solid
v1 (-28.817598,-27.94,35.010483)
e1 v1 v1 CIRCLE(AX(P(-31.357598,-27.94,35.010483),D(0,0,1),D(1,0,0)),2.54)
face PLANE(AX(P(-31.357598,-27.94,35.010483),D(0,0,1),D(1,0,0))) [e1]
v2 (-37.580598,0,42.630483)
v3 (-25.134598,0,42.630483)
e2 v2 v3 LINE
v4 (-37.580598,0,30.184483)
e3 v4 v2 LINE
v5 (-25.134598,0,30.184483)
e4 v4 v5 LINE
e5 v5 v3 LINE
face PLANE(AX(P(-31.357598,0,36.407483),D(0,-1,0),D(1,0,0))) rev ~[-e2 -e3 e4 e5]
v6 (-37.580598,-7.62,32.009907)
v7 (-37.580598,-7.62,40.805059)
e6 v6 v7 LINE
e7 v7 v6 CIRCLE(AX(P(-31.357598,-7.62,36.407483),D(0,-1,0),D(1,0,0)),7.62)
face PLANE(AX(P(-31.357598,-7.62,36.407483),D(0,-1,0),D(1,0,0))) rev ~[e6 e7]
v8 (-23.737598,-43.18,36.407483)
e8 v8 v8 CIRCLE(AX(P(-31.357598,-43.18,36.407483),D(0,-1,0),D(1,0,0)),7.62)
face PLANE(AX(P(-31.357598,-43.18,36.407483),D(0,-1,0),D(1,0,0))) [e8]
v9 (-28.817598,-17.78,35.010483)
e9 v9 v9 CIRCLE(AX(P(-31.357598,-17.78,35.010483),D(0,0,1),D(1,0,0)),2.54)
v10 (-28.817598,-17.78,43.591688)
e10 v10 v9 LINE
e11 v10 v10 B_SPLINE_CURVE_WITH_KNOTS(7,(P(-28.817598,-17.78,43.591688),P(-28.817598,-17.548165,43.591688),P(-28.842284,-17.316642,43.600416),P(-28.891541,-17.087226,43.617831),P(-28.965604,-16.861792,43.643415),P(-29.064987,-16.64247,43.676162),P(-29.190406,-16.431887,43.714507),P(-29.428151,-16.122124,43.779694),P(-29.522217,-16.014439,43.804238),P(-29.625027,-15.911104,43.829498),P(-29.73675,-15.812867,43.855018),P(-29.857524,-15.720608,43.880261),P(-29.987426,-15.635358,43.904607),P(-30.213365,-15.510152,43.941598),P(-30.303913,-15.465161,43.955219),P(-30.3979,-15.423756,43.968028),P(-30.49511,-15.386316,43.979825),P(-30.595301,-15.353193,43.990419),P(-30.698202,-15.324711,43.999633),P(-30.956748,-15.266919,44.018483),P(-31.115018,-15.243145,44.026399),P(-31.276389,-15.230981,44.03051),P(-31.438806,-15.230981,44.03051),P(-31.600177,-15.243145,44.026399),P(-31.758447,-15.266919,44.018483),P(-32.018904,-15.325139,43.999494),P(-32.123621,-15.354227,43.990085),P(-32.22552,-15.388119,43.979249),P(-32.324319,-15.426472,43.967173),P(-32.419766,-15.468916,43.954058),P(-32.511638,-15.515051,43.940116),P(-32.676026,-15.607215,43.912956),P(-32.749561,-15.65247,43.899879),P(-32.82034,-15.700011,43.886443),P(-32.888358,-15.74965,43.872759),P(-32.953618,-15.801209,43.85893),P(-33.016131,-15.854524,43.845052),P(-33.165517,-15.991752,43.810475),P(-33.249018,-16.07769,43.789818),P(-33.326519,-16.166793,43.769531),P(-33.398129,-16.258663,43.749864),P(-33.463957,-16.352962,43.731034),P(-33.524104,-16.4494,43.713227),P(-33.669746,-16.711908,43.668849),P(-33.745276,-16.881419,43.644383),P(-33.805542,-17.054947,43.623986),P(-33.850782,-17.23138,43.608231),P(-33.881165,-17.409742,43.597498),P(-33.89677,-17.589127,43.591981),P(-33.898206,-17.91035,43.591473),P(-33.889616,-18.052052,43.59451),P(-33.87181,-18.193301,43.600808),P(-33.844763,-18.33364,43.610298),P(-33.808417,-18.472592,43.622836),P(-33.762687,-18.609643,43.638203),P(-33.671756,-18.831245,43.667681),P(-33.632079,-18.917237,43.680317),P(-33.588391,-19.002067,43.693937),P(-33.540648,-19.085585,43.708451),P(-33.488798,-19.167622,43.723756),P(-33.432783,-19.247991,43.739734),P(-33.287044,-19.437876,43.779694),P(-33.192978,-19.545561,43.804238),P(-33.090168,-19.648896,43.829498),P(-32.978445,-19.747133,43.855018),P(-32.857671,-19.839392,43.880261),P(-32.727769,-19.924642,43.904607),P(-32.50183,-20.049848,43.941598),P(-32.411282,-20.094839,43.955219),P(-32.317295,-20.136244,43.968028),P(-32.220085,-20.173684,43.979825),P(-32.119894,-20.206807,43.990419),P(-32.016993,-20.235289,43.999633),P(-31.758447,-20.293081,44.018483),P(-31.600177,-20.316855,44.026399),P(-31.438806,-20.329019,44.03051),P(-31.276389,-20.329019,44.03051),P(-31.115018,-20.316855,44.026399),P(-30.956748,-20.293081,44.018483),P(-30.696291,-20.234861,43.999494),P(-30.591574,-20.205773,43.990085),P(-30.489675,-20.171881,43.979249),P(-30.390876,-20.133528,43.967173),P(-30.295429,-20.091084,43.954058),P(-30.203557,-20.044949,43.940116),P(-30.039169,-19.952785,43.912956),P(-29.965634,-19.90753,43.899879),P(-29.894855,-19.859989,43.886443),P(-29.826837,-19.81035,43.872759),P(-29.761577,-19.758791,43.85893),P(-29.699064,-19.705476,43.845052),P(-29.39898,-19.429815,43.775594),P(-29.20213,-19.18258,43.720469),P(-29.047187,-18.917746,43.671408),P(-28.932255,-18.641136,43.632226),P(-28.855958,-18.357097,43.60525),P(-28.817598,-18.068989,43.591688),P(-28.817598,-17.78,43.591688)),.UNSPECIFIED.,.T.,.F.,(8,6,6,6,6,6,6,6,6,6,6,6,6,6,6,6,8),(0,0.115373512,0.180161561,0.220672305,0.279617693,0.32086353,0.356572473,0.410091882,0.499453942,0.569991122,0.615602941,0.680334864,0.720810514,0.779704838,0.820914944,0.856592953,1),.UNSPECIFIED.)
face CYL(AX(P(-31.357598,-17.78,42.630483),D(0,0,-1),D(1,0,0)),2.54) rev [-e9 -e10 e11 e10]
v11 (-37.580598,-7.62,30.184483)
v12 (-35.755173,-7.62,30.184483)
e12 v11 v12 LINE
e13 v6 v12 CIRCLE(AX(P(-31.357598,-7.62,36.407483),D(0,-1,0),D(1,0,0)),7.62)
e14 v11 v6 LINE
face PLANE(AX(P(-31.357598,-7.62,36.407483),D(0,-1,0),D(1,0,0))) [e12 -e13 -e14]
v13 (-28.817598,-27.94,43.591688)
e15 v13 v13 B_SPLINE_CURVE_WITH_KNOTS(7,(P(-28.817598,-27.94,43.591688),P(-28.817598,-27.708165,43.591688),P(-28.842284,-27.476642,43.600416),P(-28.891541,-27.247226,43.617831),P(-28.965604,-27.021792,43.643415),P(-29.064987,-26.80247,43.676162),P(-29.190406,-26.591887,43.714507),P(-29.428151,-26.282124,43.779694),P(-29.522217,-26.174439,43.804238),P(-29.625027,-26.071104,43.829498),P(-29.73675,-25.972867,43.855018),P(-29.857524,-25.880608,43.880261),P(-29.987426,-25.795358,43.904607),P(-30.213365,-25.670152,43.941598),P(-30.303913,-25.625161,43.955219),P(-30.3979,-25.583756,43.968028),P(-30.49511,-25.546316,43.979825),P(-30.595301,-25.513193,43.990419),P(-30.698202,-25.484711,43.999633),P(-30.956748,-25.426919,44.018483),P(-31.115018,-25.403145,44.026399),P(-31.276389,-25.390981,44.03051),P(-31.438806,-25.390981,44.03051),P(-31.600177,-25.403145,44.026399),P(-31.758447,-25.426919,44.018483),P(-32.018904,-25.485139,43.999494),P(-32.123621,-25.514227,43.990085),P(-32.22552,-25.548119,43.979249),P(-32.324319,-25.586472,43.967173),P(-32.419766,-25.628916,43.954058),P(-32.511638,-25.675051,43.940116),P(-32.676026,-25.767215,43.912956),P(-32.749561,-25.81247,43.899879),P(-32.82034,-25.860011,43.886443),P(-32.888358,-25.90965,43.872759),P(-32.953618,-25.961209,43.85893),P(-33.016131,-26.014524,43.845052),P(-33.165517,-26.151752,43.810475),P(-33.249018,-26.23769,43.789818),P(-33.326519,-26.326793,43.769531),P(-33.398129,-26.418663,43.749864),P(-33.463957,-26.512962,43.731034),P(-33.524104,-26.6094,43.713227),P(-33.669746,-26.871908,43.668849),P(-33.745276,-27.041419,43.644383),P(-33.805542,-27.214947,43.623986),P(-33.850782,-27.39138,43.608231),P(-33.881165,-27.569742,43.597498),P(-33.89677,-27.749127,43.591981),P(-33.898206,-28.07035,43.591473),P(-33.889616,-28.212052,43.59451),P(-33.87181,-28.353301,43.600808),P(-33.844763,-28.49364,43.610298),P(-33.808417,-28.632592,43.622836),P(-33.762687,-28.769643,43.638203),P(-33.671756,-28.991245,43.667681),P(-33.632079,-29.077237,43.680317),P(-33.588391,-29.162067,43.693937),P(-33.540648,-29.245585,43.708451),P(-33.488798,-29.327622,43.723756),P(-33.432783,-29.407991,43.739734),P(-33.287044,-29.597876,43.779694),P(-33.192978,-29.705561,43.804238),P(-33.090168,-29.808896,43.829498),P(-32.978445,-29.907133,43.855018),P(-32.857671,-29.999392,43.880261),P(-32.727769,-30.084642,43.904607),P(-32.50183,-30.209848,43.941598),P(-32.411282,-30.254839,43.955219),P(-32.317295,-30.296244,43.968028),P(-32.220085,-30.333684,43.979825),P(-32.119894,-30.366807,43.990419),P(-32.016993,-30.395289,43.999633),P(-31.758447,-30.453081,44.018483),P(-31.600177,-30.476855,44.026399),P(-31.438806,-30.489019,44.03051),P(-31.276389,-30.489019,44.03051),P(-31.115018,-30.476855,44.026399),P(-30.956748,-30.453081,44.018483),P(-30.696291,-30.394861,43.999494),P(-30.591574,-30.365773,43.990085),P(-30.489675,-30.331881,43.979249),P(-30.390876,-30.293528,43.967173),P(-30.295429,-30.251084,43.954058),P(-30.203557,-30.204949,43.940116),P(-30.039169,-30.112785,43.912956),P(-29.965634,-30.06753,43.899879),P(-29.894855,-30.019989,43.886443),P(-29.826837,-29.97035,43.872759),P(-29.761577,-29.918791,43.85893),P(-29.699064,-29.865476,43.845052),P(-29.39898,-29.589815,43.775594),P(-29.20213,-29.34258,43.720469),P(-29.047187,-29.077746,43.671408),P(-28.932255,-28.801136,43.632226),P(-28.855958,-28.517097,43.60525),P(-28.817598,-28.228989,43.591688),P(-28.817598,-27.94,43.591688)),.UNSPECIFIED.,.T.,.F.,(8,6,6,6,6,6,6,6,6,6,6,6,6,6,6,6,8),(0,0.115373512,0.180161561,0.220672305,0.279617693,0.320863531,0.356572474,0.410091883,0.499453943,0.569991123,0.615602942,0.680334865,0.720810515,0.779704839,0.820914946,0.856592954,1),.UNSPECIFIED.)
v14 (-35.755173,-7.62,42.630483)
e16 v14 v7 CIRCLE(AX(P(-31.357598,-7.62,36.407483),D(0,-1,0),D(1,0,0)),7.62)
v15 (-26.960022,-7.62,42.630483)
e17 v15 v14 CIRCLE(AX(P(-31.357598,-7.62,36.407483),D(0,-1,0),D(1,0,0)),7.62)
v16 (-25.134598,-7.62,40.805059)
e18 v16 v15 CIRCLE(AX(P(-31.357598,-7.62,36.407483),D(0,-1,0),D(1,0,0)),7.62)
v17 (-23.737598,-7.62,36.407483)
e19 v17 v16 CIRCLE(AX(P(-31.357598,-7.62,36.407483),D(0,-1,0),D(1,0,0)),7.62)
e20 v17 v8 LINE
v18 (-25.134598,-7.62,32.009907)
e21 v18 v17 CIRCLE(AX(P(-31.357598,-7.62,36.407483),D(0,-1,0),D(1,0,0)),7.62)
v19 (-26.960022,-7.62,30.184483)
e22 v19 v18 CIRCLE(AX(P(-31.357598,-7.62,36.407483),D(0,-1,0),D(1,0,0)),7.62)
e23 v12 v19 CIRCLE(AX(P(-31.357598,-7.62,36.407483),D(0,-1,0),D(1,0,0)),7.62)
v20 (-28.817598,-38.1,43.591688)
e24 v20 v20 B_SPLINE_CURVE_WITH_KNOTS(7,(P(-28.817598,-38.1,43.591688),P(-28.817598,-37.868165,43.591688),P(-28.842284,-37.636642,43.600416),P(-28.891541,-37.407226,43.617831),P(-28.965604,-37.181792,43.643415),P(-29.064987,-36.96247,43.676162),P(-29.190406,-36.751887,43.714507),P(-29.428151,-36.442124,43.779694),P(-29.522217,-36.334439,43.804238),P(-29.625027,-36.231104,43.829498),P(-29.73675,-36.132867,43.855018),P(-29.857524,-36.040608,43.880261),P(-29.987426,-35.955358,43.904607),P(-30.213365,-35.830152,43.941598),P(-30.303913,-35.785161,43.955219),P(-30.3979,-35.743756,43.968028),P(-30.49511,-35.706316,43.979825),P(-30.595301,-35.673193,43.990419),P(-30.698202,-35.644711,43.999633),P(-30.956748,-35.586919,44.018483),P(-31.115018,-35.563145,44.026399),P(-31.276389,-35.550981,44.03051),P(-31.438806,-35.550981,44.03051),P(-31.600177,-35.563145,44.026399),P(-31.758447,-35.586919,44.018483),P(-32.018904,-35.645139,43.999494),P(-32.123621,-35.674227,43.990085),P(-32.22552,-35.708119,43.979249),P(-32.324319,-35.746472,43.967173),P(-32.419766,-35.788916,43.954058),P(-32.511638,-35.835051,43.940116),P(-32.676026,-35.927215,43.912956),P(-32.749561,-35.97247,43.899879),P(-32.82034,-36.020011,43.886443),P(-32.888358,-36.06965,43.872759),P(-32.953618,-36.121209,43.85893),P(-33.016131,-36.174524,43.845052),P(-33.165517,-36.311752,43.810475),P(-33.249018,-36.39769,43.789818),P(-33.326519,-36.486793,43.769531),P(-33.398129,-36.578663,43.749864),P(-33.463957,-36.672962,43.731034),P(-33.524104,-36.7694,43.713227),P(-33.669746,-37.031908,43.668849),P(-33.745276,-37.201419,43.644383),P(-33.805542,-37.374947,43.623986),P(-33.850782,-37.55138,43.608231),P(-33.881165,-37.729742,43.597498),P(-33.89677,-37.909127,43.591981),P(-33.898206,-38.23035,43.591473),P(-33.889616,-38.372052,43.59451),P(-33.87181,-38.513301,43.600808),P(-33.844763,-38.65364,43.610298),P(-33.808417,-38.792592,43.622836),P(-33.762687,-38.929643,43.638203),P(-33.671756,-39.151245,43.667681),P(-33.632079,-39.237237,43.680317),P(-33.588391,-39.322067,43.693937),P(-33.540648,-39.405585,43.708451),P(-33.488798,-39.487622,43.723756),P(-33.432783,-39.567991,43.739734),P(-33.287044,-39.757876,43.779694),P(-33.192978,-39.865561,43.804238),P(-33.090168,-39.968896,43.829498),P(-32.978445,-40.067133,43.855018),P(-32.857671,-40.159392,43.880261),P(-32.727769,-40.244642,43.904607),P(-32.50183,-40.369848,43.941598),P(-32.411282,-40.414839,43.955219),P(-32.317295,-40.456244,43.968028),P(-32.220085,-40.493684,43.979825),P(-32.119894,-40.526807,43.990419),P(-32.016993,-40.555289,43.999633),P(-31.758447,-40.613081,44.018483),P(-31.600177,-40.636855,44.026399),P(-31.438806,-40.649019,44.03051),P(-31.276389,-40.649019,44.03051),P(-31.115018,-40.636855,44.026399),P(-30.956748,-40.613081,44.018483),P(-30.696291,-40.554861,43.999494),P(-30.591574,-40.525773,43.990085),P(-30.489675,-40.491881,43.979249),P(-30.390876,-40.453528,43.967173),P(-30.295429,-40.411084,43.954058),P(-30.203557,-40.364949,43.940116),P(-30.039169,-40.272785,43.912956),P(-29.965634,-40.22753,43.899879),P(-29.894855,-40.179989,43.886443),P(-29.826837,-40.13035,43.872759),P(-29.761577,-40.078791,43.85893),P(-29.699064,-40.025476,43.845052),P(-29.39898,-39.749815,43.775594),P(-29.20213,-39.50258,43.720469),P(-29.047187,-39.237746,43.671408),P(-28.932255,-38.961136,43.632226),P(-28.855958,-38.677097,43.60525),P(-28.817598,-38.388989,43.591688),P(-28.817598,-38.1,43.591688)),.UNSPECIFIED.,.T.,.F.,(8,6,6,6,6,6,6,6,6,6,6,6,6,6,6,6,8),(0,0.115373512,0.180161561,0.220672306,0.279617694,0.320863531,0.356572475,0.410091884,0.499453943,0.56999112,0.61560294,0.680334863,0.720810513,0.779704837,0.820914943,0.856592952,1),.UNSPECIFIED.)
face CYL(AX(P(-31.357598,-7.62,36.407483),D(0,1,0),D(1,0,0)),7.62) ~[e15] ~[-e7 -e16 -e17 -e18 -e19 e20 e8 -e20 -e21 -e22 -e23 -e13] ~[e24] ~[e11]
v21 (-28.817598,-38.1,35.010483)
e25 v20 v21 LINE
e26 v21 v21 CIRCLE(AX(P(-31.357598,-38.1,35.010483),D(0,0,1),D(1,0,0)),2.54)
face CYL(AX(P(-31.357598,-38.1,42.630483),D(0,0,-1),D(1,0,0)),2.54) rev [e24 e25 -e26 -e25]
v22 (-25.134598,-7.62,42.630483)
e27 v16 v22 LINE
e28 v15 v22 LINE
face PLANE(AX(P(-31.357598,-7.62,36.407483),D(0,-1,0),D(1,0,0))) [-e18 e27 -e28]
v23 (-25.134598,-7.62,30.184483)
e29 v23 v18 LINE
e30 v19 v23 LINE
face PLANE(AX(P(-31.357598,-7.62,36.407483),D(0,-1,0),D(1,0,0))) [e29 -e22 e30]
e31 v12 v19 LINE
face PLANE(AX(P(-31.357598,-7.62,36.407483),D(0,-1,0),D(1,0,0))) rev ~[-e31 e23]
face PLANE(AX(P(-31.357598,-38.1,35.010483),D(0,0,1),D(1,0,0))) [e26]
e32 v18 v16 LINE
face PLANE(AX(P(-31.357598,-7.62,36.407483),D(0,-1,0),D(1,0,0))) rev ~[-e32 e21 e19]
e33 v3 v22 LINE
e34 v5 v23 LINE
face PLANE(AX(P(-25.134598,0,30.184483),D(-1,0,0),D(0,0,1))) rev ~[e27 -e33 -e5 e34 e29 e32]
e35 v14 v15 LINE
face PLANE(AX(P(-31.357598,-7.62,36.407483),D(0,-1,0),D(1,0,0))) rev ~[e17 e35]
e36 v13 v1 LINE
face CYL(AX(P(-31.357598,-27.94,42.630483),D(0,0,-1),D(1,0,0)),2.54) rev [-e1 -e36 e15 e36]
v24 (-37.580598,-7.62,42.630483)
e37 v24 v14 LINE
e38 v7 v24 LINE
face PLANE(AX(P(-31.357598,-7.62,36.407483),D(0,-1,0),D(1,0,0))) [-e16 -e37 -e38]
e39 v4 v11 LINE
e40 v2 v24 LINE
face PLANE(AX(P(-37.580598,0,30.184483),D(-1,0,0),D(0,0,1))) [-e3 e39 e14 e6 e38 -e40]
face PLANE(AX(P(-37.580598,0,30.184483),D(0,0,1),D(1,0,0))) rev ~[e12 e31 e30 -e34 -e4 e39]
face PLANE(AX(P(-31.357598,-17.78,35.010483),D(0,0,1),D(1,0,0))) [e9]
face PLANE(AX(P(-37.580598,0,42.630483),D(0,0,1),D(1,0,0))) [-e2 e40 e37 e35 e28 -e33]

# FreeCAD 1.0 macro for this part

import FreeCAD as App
import Part
import Sketcher
from FreeCAD import Vector
Q = App.Units.Quantity

doc = App.newDocument("Part")
body = doc.addObject("PartDesign::Body", "Body")

# Sketch on XZ plane
sketch1 = body.newObject("Sketcher::SketchObject", "Sketch")
sketch1.AttachmentSupport = (doc.getObject("XZ_Plane"), [""])
sketch1.MapMode = "FlatFace"
sketch1.addGeometry([
    Part.LineSegment(Vector(-38, 43, 0), Vector(-38, 30, 0)),
    Part.LineSegment(Vector(-38, 30, 0), Vector(-25, 30, 0)),
    Part.LineSegment(Vector(-25, 30, 0), Vector(-25, 43, 0)),
    Part.LineSegment(Vector(-25, 43, 0), Vector(-38, 43, 0)),
], False)
sketch1.addConstraint([
    Sketcher.Constraint("Coincident", 0, 2, 1, 1),
    Sketcher.Constraint("Coincident", 1, 2, 2, 1),
    Sketcher.Constraint("Coincident", 2, 2, 3, 1),
    Sketcher.Constraint("Coincident", 3, 2, 0, 1),
    Sketcher.Constraint("Vertical", 0),
    Sketcher.Constraint("Horizontal", 1),
    Sketcher.Constraint("Vertical", 2),
    Sketcher.Constraint("Horizontal", 3),
    Sketcher.Constraint("Equal", 3, 0),
    Sketcher.Constraint("DistanceX", 1, 1, 1, 2, Q("0.49 in")),
    Sketcher.Constraint("DistanceX", 0, 2, -1, 1, 37.580598),
    Sketcher.Constraint("DistanceY", -1, 1, 0, 2, 30.184483),
])
pad1 = body.newObject("PartDesign::Pad", "Pad")
pad1.Profile = sketch1
pad1.Length = Q("0.3 in")

# Sketch on XZ plane
sketch2 = body.newObject("Sketcher::SketchObject", "Sketch001")
sketch2.AttachmentSupport = (doc.getObject("XZ_Plane"), [""])
sketch2.MapMode = "FlatFace"
sketch2.AttachmentOffset = App.Placement(Vector(0, 0, 0.3 * 25.4), App.Rotation())
sketch2.addGeometry(Part.Circle(Vector(-31, 36, 0), Vector(0, 0, 1), 8), False)
sketch2.addConstraint([
    Sketcher.Constraint("Diameter", 0, Q("0.6 in")),
    Sketcher.Constraint("DistanceX", 0, 3, -1, 1, 31.357598),
    Sketcher.Constraint("DistanceY", -1, 1, 0, 3, 36.407483),
])
pad2 = body.newObject("PartDesign::Pad", "Pad001")
pad2.Profile = sketch2
pad2.Length = Q("1.4 in")

# Sketch on XY plane
sketch3 = body.newObject("Sketcher::SketchObject", "Sketch002")
sketch3.AttachmentSupport = (doc.getObject("XY_Plane"), [""])
sketch3.MapMode = "FlatFace"
sketch3.AttachmentOffset = App.Placement(Vector(0, 0, 42.630483), App.Rotation())
sketch3.addGeometry([
    Part.Circle(Vector(-31.4, -17.8, 0), Vector(0, 0, 1), 2.5),
    Part.Circle(Vector(-31.4, -27.9, 0), Vector(0, 0, 1), 2.5),
    Part.Circle(Vector(-31.4, -38.1, 0), Vector(0, 0, 1), 2.5),
], False)
sketch3.addConstraint([
    Sketcher.Constraint("Equal", 0, 1),
    Sketcher.Constraint("Equal", 1, 2),
    Sketcher.Constraint("Vertical", 0, 3, 1, 3),
    Sketcher.Constraint("Vertical", 1, 3, 2, 3),
    Sketcher.Constraint("Diameter", 0, Q("0.2 in")),
    Sketcher.Constraint("DistanceY", 0, 3, -1, 1, Q("0.7 in")),
    Sketcher.Constraint("DistanceY", 1, 3, -1, 1, Q("1.1 in")),
    Sketcher.Constraint("DistanceY", 2, 3, -1, 1, Q("1.5 in")),
    Sketcher.Constraint("DistanceX", 0, 3, -1, 1, 31.357598),
])
pocket1 = body.newObject("PartDesign::Pocket", "Pocket")
pocket1.Profile = sketch3
pocket1.Type = "TwoLengths"
pocket1.Length = Q("0.3 in")
pocket1.Length2 = Q("1 in")

doc.recompute()
